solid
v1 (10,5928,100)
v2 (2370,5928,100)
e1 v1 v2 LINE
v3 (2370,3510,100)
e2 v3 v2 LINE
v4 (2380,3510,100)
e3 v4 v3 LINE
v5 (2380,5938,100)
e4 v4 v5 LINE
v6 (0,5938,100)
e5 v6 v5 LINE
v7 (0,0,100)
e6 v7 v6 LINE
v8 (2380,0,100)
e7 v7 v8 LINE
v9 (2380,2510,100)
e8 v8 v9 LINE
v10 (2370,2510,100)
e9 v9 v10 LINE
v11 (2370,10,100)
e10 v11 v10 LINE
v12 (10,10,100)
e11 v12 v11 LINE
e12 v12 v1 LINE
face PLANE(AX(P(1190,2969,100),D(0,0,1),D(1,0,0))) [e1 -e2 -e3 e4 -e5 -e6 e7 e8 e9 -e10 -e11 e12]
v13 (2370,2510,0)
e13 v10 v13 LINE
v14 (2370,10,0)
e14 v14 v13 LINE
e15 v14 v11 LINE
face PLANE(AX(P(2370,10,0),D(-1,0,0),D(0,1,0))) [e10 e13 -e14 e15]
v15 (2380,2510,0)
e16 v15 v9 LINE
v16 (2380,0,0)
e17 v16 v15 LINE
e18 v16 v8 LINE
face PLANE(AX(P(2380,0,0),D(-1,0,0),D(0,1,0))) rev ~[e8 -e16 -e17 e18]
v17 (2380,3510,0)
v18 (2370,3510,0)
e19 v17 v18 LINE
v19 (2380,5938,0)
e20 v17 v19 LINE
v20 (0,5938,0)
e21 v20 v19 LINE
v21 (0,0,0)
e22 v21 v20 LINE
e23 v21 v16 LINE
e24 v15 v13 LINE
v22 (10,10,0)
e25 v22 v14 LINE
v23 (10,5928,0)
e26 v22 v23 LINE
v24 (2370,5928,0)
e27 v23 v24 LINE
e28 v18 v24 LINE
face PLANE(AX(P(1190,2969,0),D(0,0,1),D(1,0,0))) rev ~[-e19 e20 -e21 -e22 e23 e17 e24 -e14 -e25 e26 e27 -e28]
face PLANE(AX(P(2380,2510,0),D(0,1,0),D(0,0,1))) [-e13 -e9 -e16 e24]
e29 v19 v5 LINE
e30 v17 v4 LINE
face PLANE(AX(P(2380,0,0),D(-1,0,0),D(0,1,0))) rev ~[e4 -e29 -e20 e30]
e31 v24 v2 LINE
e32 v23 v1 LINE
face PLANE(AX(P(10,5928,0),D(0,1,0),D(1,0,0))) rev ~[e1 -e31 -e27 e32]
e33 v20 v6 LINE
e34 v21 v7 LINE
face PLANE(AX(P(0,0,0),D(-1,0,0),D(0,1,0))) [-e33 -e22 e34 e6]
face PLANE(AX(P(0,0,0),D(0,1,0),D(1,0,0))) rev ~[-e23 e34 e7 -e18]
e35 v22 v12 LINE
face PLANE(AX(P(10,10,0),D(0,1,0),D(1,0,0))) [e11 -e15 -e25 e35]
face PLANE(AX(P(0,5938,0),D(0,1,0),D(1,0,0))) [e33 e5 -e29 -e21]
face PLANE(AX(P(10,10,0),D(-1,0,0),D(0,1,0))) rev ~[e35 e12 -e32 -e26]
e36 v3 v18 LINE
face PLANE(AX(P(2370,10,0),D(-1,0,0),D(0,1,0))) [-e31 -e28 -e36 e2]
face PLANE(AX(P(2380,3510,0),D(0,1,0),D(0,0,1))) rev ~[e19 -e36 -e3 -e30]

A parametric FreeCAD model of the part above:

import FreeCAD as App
import Part
import Sketcher


def add_polygon(sketch, points):
    """Adds a closed chain of lines whose ends are joined by coincident constraints."""
    first, n = sketch.GeometryCount, len(points)
    for a, b in zip(points, points[1:] + points[:1]):
        sketch.addGeometry(Part.LineSegment(App.Vector(*a, 0), App.Vector(*b, 0)), False)
    for i in range(n):
        sketch.addConstraint(Sketcher.Constraint("Coincident", first + i, 2, first + (i + 1) % n, 1))

doc = App.newDocument("Part")
body = doc.addObject("PartDesign::Body", "Body")

# Sketch on XY plane
sketch1 = body.newObject("Sketcher::SketchObject", "Sketch")
sketch1.AttachmentSupport = (doc.getObject("XY_Plane"), [""])
sketch1.MapMode = "FlatFace"
add_polygon(sketch1, [(0, 5938), (0, 0), (2380, 0), (2380, 5938)])  # lines 0-3
add_polygon(sketch1, [(2370, 10), (10, 10), (10, 5928), (2370, 5928)])  # lines 4-7
sketch1.addConstraint([
    Sketcher.Constraint("Vertical", 0),
    Sketcher.Constraint("Horizontal", 1),
    Sketcher.Constraint("Vertical", 2),
    Sketcher.Constraint("Horizontal", 3),
    Sketcher.Constraint("Horizontal", 4),
    Sketcher.Constraint("Vertical", 5),
    Sketcher.Constraint("Horizontal", 6),
    Sketcher.Constraint("Vertical", 7),
    Sketcher.Constraint("Coincident", 0, 2, -1, 1),
    Sketcher.Constraint("DistanceX", 1, 1, 1, 2, 2380.0),
    Sketcher.Constraint("DistanceX", 4, 2, 4, 1, 2360.0),
    Sketcher.Constraint("DistanceY", 0, 2, 0, 1, 5938.0),
    Sketcher.Constraint("DistanceY", 5, 1, 5, 2, 5918.0),
    Sketcher.Constraint("DistanceX", -1, 1, 4, 2, 10.0),
    Sketcher.Constraint("DistanceY", -1, 1, 4, 2, 10.0),
])
pad1 = body.newObject("PartDesign::Pad", "Pad")
pad1.Profile = sketch1
pad1.Length = 100

# Sketch on YZ plane
sketch2 = body.newObject("Sketcher::SketchObject", "Sketch001")
sketch2.AttachmentSupport = (doc.getObject("YZ_Plane"), [""])
sketch2.MapMode = "FlatFace"
sketch2.AttachmentOffset = App.Placement(App.Vector(0, 0, 2380), App.Rotation())
add_polygon(sketch2, [(2510, 100), (2510, 0), (3510, 0), (3510, 100)])  # lines 0-3
sketch2.addConstraint([
    Sketcher.Constraint("Vertical", 0),
    Sketcher.Constraint("Horizontal", 1),
    Sketcher.Constraint("Vertical", 2),
    Sketcher.Constraint("Horizontal", 3),
    Sketcher.Constraint("PointOnObject", 0, 2, -1),
    Sketcher.Constraint("DistanceX", 1, 1, 1, 2, 1000.0),
    Sketcher.Constraint("DistanceY", 0, 2, 0, 1, 100.0),
    Sketcher.Constraint("DistanceX", -1, 1, 0, 2, 2510.0),
])
pocket1 = body.newObject("PartDesign::Pocket", "Pocket")
pocket1.Profile = sketch2
pocket1.Length = 25

doc.recompute()
